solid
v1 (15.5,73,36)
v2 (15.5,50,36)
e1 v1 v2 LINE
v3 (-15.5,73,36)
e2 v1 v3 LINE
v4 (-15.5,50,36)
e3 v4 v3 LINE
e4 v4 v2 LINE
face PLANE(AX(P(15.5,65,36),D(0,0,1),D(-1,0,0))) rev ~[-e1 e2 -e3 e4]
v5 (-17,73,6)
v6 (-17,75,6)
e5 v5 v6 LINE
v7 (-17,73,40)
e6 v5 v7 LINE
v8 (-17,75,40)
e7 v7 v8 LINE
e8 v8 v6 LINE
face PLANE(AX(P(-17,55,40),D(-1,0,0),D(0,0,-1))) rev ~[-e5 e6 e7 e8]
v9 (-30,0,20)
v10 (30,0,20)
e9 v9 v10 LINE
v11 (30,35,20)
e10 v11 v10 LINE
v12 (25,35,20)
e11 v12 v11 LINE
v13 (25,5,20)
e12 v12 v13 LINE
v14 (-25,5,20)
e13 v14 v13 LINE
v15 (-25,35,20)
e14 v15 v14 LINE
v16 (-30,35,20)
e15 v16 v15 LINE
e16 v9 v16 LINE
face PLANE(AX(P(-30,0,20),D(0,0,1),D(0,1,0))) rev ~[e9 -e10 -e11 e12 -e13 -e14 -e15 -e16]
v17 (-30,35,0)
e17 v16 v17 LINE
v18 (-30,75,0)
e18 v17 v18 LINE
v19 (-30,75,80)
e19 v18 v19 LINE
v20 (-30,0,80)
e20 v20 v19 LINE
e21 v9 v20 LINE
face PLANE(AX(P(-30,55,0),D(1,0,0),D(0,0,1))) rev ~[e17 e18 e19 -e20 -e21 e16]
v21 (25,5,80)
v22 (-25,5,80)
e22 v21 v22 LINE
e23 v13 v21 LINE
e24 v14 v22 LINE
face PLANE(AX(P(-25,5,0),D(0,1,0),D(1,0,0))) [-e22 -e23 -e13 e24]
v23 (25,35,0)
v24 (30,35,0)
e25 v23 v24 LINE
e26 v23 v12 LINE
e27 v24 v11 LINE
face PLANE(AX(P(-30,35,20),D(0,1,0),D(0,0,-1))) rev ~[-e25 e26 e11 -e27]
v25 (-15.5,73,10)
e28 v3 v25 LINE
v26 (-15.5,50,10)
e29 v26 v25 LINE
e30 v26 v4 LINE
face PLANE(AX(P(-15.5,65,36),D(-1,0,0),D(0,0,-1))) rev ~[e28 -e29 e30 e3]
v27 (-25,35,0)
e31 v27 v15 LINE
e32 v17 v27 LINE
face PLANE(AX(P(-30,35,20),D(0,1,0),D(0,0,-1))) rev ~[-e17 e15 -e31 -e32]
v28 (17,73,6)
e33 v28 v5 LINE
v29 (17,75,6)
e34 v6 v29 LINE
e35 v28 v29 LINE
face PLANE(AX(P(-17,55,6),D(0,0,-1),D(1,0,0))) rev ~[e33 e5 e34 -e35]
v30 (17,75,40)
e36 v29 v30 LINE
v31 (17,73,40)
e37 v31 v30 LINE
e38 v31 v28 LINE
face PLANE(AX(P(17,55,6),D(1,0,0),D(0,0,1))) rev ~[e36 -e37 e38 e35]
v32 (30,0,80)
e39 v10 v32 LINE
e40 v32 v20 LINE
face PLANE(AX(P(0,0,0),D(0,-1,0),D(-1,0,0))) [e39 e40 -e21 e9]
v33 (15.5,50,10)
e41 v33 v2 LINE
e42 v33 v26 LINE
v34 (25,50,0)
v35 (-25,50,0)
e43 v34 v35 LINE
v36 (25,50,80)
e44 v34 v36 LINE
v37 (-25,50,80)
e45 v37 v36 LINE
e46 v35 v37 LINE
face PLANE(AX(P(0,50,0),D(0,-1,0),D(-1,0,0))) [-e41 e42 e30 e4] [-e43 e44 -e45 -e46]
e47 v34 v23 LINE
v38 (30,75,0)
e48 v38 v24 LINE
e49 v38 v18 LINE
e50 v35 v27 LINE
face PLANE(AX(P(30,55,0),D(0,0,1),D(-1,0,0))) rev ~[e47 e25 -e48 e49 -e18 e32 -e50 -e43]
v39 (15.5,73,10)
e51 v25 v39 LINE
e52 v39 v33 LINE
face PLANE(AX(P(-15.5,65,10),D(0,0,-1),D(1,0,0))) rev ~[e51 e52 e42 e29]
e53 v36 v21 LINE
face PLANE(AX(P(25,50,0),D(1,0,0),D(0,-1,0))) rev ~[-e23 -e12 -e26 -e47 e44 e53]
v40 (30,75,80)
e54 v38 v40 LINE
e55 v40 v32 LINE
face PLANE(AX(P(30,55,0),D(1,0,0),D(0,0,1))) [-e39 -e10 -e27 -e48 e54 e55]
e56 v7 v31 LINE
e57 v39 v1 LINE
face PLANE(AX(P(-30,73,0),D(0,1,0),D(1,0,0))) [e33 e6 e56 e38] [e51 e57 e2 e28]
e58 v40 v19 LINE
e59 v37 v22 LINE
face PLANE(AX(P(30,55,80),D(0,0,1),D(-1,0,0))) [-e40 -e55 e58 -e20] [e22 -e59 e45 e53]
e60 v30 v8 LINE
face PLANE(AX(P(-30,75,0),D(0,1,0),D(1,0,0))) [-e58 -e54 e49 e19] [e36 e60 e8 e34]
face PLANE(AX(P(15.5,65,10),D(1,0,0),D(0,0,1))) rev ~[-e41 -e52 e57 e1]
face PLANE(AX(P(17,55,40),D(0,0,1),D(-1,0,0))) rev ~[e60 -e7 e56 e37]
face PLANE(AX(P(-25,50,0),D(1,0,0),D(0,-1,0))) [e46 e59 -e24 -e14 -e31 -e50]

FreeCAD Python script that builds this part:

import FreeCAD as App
import Part
import Sketcher

doc = App.newDocument("Part")
params = doc.addObject("Spreadsheet::Sheet", "Params")
for row, (alias, value) in enumerate([
    ("sketch1_width", "50 mm"),
    ("sketch1_height", "55 mm"),
    ("sketch1_height2", "45 mm"),
    ("pad1_length", "80 mm"),
    ("sketch2_width", "31 mm"),
    ("sketch2_height", "26 mm"),
    ("pocket1_length", "10 mm"),
    ("sketch3_width", "34 mm"),
    ("sketch3_width2", "31 mm"),
    ("sketch3_height", "26 mm"),
    ("pad2_length", "10 mm"),
    ("sketch4_width", "34 mm"),
    ("sketch4_height", "80 mm"),
    ("pad3_length", "20 mm"),
    ("sketch5_width", "35 mm"),
    ("sketch5_height", "20 mm"),
    ("sketch6_width", "34 mm"),
    ("sketch6_width2", "31 mm"),
    ("sketch6_height", "26 mm"),
    ("pad4_length", "8 mm"),
], start=1):
    params.set(f"A{row}", alias)
    params.set(f"B{row}", "=" + value)
    params.setAlias(f"B{row}", alias)

body = doc.addObject("PartDesign::Body", "Body")

sketch1 = body.newObject("Sketcher::SketchObject", "Sketch")
sketch1.AttachmentSupport = (doc.getObject("XY_Plane"), [""])
sketch1.MapMode = "FlatFace"
sketch1.addGeometry([
    Part.LineSegment(App.Vector(-30, 0, 0), App.Vector(30, 0, 0)),
    Part.LineSegment(App.Vector(30, 0, 0), App.Vector(30, 55, 0)),
    Part.LineSegment(App.Vector(30, 55, 0), App.Vector(-30, 55, 0)),
    Part.LineSegment(App.Vector(-30, 55, 0), App.Vector(-30, 0, 0)),
    Part.LineSegment(App.Vector(-25, 50, 0), App.Vector(25, 50, 0)),
    Part.LineSegment(App.Vector(25, 50, 0), App.Vector(25, 5, 0)),
    Part.LineSegment(App.Vector(25, 5, 0), App.Vector(-25, 5, 0)),
    Part.LineSegment(App.Vector(-25, 5, 0), App.Vector(-25, 50, 0)),
], False)
sketch1.addConstraint([
    Sketcher.Constraint("Coincident", 0, 2, 1, 1),
    Sketcher.Constraint("Coincident", 1, 2, 2, 1),
    Sketcher.Constraint("Coincident", 2, 2, 3, 1),
    Sketcher.Constraint("Coincident", 3, 2, 0, 1),
    Sketcher.Constraint("Coincident", 4, 2, 5, 1),
    Sketcher.Constraint("Coincident", 5, 2, 6, 1),
    Sketcher.Constraint("Coincident", 6, 2, 7, 1),
    Sketcher.Constraint("Coincident", 7, 2, 4, 1),
    Sketcher.Constraint("Horizontal", 0),
    Sketcher.Constraint("Vertical", 1),
    Sketcher.Constraint("Horizontal", 2),
    Sketcher.Constraint("Vertical", 3),
    Sketcher.Constraint("Horizontal", 4),
    Sketcher.Constraint("Vertical", 5),
    Sketcher.Constraint("Horizontal", 6),
    Sketcher.Constraint("Vertical", 7),
    Sketcher.Constraint("Symmetric", 0, 2, 3, 2, -1, 1),
    Sketcher.Constraint("DistanceX", 4, 1, 4, 2, 50.0),
    Sketcher.Constraint("DistanceY", 1, 1, 1, 2, 55.0),
    Sketcher.Constraint("DistanceY", 5, 2, 5, 1, 45.0),
    Sketcher.Constraint("DistanceX", -1, 1, 0, 2, 30.0),
    Sketcher.Constraint("DistanceX", -1, 1, 4, 2, 25.0),
    Sketcher.Constraint("DistanceY", -1, 1, 4, 2, 50.0),
])
sketch1.setExpression("Constraints[17]", "Params.sketch1_width")
sketch1.setExpression("Constraints[18]", "Params.sketch1_height")
sketch1.setExpression("Constraints[19]", "Params.sketch1_height2")
pad1 = body.newObject("PartDesign::Pad", "Pad")
pad1.Profile = sketch1
pad1.setExpression("Length", "Params.pad1_length")

sketch2 = body.newObject("Sketcher::SketchObject", "Sketch001")
sketch2.AttachmentSupport = (doc.getObject("XZ_Plane"), [""])
sketch2.MapMode = "FlatFace"
sketch2.AttachmentOffset = App.Placement(App.Vector(0, 0, -55), App.Rotation())
sketch2.addGeometry([
    Part.LineSegment(App.Vector(16, 10, 0), App.Vector(-16, 10, 0)),
    Part.LineSegment(App.Vector(-16, 10, 0), App.Vector(-16, 36, 0)),
    Part.LineSegment(App.Vector(-16, 36, 0), App.Vector(16, 36, 0)),
    Part.LineSegment(App.Vector(16, 36, 0), App.Vector(16, 10, 0)),
], False)
sketch2.addConstraint([
    Sketcher.Constraint("Coincident", 0, 2, 1, 1),
    Sketcher.Constraint("Coincident", 1, 2, 2, 1),
    Sketcher.Constraint("Coincident", 2, 2, 3, 1),
    Sketcher.Constraint("Coincident", 3, 2, 0, 1),
    Sketcher.Constraint("Horizontal", 0),
    Sketcher.Constraint("Vertical", 1),
    Sketcher.Constraint("Horizontal", 2),
    Sketcher.Constraint("Vertical", 3),
    Sketcher.Constraint("DistanceX", 0, 2, 0, 1, 31.0),
    Sketcher.Constraint("DistanceY", 1, 1, 1, 2, 26.0),
    Sketcher.Constraint("DistanceY", -1, 1, 0, 2, 10.0),
    Sketcher.Constraint("DistanceX", 0, 2, -1, 1, 15.5),
])
sketch2.setExpression("Constraints[8]", "Params.sketch2_width")
sketch2.setExpression("Constraints[9]", "Params.sketch2_height")
pocket1 = body.newObject("PartDesign::Pocket", "Pocket")
pocket1.Profile = sketch2
pocket1.setExpression("Length", "Params.pocket1_length")
pocket1.Reversed = True

sketch3 = body.newObject("Sketcher::SketchObject", "Sketch002")
sketch3.AttachmentSupport = (doc.getObject("XZ_Plane"), [""])
sketch3.MapMode = "FlatFace"
sketch3.AttachmentOffset = App.Placement(App.Vector(0, 0, -55), App.Rotation())
sketch3.addGeometry([
    Part.LineSegment(App.Vector(17, 6, 0), App.Vector(-17, 6, 0)),
    Part.LineSegment(App.Vector(-17, 6, 0), App.Vector(-17, 40, 0)),
    Part.LineSegment(App.Vector(-17, 40, 0), App.Vector(17, 40, 0)),
    Part.LineSegment(App.Vector(17, 40, 0), App.Vector(17, 6, 0)),
    Part.LineSegment(App.Vector(-16, 36, 0), App.Vector(-16, 10, 0)),
    Part.LineSegment(App.Vector(-16, 10, 0), App.Vector(16, 10, 0)),
    Part.LineSegment(App.Vector(16, 10, 0), App.Vector(16, 36, 0)),
    Part.LineSegment(App.Vector(16, 36, 0), App.Vector(-16, 36, 0)),
], False)
sketch3.addConstraint([
    Sketcher.Constraint("Coincident", 0, 2, 1, 1),
    Sketcher.Constraint("Coincident", 1, 2, 2, 1),
    Sketcher.Constraint("Coincident", 2, 2, 3, 1),
    Sketcher.Constraint("Coincident", 3, 2, 0, 1),
    Sketcher.Constraint("Coincident", 4, 2, 5, 1),
    Sketcher.Constraint("Coincident", 5, 2, 6, 1),
    Sketcher.Constraint("Coincident", 6, 2, 7, 1),
    Sketcher.Constraint("Coincident", 7, 2, 4, 1),
    Sketcher.Constraint("Horizontal", 0),
    Sketcher.Constraint("Vertical", 1),
    Sketcher.Constraint("Horizontal", 2),
    Sketcher.Constraint("Vertical", 3),
    Sketcher.Constraint("Vertical", 4),
    Sketcher.Constraint("Horizontal", 5),
    Sketcher.Constraint("Vertical", 6),
    Sketcher.Constraint("Horizontal", 7),
    Sketcher.Constraint("Equal", 2, 1),
    Sketcher.Constraint("DistanceX", 0, 2, 0, 1, 34.0),
    Sketcher.Constraint("DistanceX", 5, 1, 5, 2, 31.0),
    Sketcher.Constraint("DistanceY", 4, 2, 4, 1, 26.0),
    Sketcher.Constraint("DistanceY", 4, 2, 1, 2, 30.0),
    Sketcher.Constraint("DistanceX", 0, 2, -1, 1, 17.0),
    Sketcher.Constraint("DistanceY", -1, 1, 0, 2, 6.0),
    Sketcher.Constraint("DistanceX", 4, 2, -1, 1, 15.5),
])
sketch3.setExpression("Constraints[17]", "Params.sketch3_width")
sketch3.setExpression("Constraints[18]", "Params.sketch3_width2")
sketch3.setExpression("Constraints[19]", "Params.sketch3_height")
pad2 = body.newObject("PartDesign::Pad", "Pad001")
pad2.Profile = sketch3
pad2.setExpression("Length", "Params.pad2_length")
pad2.Reversed = True

sketch4 = body.newObject("Sketcher::SketchObject", "Sketch003")
sketch4.AttachmentSupport = (doc.getObject("XZ_Plane"), [""])
sketch4.MapMode = "FlatFace"
sketch4.AttachmentOffset = App.Placement(App.Vector(0, 0, -55), App.Rotation())
sketch4.addGeometry([
    Part.LineSegment(App.Vector(30, 0, 0), App.Vector(-30, 0, 0)),
    Part.LineSegment(App.Vector(-30, 0, 0), App.Vector(-30, 80, 0)),
    Part.LineSegment(App.Vector(-30, 80, 0), App.Vector(30, 80, 0)),
    Part.LineSegment(App.Vector(30, 80, 0), App.Vector(30, 0, 0)),
    Part.LineSegment(App.Vector(-17, 40, 0), App.Vector(-17, 6, 0)),
    Part.LineSegment(App.Vector(-17, 6, 0), App.Vector(17, 6, 0)),
    Part.LineSegment(App.Vector(17, 6, 0), App.Vector(17, 40, 0)),
    Part.LineSegment(App.Vector(17, 40, 0), App.Vector(-17, 40, 0)),
], False)
sketch4.addConstraint([
    Sketcher.Constraint("Coincident", 0, 2, 1, 1),
    Sketcher.Constraint("Coincident", 1, 2, 2, 1),
    Sketcher.Constraint("Coincident", 2, 2, 3, 1),
    Sketcher.Constraint("Coincident", 3, 2, 0, 1),
    Sketcher.Constraint("Coincident", 4, 2, 5, 1),
    Sketcher.Constraint("Coincident", 5, 2, 6, 1),
    Sketcher.Constraint("Coincident", 6, 2, 7, 1),
    Sketcher.Constraint("Coincident", 7, 2, 4, 1),
    Sketcher.Constraint("Horizontal", 0),
    Sketcher.Constraint("Vertical", 1),
    Sketcher.Constraint("Horizontal", 2),
    Sketcher.Constraint("Vertical", 3),
    Sketcher.Constraint("Vertical", 4),
    Sketcher.Constraint("Horizontal", 5),
    Sketcher.Constraint("Vertical", 6),
    Sketcher.Constraint("Horizontal", 7),
    Sketcher.Constraint("Symmetric", 0, 2, 3, 2, -1, 1),
    Sketcher.Constraint("Equal", 7, 4),
    Sketcher.Constraint("DistanceX", 5, 1, 5, 2, 34.0),
    Sketcher.Constraint("DistanceX", 0, 2, -1, 1, 30.0),
    Sketcher.Constraint("DistanceY", 1, 1, 1, 2, 80.0),
    Sketcher.Constraint("DistanceX", 4, 2, -1, 1, 17.0),
    Sketcher.Constraint("DistanceY", -1, 1, 4, 2, 6.0),
])
sketch4.setExpression("Constraints[18]", "Params.sketch4_width")
sketch4.setExpression("Constraints[20]", "Params.sketch4_height")
pad3 = body.newObject("PartDesign::Pad", "Pad002")
pad3.Profile = sketch4
pad3.setExpression("Length", "Params.pad3_length")
pad3.Reversed = True

sketch5 = body.newObject("Sketcher::SketchObject", "Sketch004")
sketch5.AttachmentSupport = (doc.getObject("YZ_Plane"), [""])
sketch5.MapMode = "FlatFace"
sketch5.AttachmentOffset = App.Placement(App.Vector(0, 0, -30), App.Rotation())
sketch5.addGeometry([
    Part.LineSegment(App.Vector(35, 0, 0), App.Vector(0, 0, 0)),
    Part.LineSegment(App.Vector(0, 0, 0), App.Vector(0, 20, 0)),
    Part.LineSegment(App.Vector(0, 20, 0), App.Vector(35, 20, 0)),
    Part.LineSegment(App.Vector(35, 20, 0), App.Vector(35, 0, 0)),
], False)
sketch5.addConstraint([
    Sketcher.Constraint("Coincident", 0, 2, 1, 1),
    Sketcher.Constraint("Coincident", 1, 2, 2, 1),
    Sketcher.Constraint("Coincident", 2, 2, 3, 1),
    Sketcher.Constraint("Coincident", 3, 2, 0, 1),
    Sketcher.Constraint("Horizontal", 0),
    Sketcher.Constraint("Vertical", 1),
    Sketcher.Constraint("Horizontal", 2),
    Sketcher.Constraint("Vertical", 3),
    Sketcher.Constraint("Coincident", 0, 2, -1, 1),
    Sketcher.Constraint("DistanceX", 0, 2, 0, 1, 35.0),
    Sketcher.Constraint("DistanceY", 1, 1, 1, 2, 20.0),
])
sketch5.setExpression("Constraints[9]", "Params.sketch5_width")
sketch5.setExpression("Constraints[10]", "Params.sketch5_height")
pocket2 = body.newObject("PartDesign::Pocket", "Pocket001")
pocket2.Profile = sketch5
pocket2.Type = "ThroughAll"
pocket2.Reversed = True

sketch6 = body.newObject("Sketcher::SketchObject", "Sketch005")
sketch6.AttachmentSupport = (doc.getObject("XZ_Plane"), [""])
sketch6.MapMode = "FlatFace"
sketch6.AttachmentOffset = App.Placement(App.Vector(0, 0, -65), App.Rotation())
sketch6.addGeometry([
    Part.LineSegment(App.Vector(-17, 6, 0), App.Vector(-17, 40, 0)),
    Part.LineSegment(App.Vector(-17, 40, 0), App.Vector(17, 40, 0)),
    Part.LineSegment(App.Vector(17, 40, 0), App.Vector(17, 6, 0)),
    Part.LineSegment(App.Vector(17, 6, 0), App.Vector(-17, 6, 0)),
    Part.LineSegment(App.Vector(16, 36, 0), App.Vector(-16, 36, 0)),
    Part.LineSegment(App.Vector(-16, 36, 0), App.Vector(-16, 10, 0)),
    Part.LineSegment(App.Vector(-16, 10, 0), App.Vector(16, 10, 0)),
    Part.LineSegment(App.Vector(16, 10, 0), App.Vector(16, 36, 0)),
], False)
sketch6.addConstraint([
    Sketcher.Constraint("Coincident", 0, 2, 1, 1),
    Sketcher.Constraint("Coincident", 1, 2, 2, 1),
    Sketcher.Constraint("Coincident", 2, 2, 3, 1),
    Sketcher.Constraint("Coincident", 3, 2, 0, 1),
    Sketcher.Constraint("Coincident", 4, 2, 5, 1),
    Sketcher.Constraint("Coincident", 5, 2, 6, 1),
    Sketcher.Constraint("Coincident", 6, 2, 7, 1),
    Sketcher.Constraint("Coincident", 7, 2, 4, 1),
    Sketcher.Constraint("Vertical", 0),
    Sketcher.Constraint("Horizontal", 1),
    Sketcher.Constraint("Vertical", 2),
    Sketcher.Constraint("Horizontal", 3),
    Sketcher.Constraint("Horizontal", 4),
    Sketcher.Constraint("Vertical", 5),
    Sketcher.Constraint("Horizontal", 6),
    Sketcher.Constraint("Vertical", 7),
    Sketcher.Constraint("Equal", 3, 0),
    Sketcher.Constraint("DistanceX", 1, 1, 1, 2, 34.0),
    Sketcher.Constraint("DistanceX", 4, 2, 4, 1, 31.0),
    Sketcher.Constraint("DistanceY", 5, 2, 5, 1, 26.0),
    Sketcher.Constraint("DistanceX", 0, 2, -1, 1, 17.0),
    Sketcher.Constraint("DistanceY", -1, 1, 0, 2, 40.0),
    Sketcher.Constraint("DistanceY", -1, 1, 4, 2, 36.0),
    Sketcher.Constraint("DistanceX", 4, 2, -1, 1, 15.5),
])
sketch6.setExpression("Constraints[17]", "Params.sketch6_width")
sketch6.setExpression("Constraints[18]", "Params.sketch6_width2")
sketch6.setExpression("Constraints[19]", "Params.sketch6_height")
pad4 = body.newObject("PartDesign::Pad", "Pad003")
pad4.Profile = sketch6
pad4.setExpression("Length", "Params.pad4_length")
pad4.Reversed = True

doc.recompute()
